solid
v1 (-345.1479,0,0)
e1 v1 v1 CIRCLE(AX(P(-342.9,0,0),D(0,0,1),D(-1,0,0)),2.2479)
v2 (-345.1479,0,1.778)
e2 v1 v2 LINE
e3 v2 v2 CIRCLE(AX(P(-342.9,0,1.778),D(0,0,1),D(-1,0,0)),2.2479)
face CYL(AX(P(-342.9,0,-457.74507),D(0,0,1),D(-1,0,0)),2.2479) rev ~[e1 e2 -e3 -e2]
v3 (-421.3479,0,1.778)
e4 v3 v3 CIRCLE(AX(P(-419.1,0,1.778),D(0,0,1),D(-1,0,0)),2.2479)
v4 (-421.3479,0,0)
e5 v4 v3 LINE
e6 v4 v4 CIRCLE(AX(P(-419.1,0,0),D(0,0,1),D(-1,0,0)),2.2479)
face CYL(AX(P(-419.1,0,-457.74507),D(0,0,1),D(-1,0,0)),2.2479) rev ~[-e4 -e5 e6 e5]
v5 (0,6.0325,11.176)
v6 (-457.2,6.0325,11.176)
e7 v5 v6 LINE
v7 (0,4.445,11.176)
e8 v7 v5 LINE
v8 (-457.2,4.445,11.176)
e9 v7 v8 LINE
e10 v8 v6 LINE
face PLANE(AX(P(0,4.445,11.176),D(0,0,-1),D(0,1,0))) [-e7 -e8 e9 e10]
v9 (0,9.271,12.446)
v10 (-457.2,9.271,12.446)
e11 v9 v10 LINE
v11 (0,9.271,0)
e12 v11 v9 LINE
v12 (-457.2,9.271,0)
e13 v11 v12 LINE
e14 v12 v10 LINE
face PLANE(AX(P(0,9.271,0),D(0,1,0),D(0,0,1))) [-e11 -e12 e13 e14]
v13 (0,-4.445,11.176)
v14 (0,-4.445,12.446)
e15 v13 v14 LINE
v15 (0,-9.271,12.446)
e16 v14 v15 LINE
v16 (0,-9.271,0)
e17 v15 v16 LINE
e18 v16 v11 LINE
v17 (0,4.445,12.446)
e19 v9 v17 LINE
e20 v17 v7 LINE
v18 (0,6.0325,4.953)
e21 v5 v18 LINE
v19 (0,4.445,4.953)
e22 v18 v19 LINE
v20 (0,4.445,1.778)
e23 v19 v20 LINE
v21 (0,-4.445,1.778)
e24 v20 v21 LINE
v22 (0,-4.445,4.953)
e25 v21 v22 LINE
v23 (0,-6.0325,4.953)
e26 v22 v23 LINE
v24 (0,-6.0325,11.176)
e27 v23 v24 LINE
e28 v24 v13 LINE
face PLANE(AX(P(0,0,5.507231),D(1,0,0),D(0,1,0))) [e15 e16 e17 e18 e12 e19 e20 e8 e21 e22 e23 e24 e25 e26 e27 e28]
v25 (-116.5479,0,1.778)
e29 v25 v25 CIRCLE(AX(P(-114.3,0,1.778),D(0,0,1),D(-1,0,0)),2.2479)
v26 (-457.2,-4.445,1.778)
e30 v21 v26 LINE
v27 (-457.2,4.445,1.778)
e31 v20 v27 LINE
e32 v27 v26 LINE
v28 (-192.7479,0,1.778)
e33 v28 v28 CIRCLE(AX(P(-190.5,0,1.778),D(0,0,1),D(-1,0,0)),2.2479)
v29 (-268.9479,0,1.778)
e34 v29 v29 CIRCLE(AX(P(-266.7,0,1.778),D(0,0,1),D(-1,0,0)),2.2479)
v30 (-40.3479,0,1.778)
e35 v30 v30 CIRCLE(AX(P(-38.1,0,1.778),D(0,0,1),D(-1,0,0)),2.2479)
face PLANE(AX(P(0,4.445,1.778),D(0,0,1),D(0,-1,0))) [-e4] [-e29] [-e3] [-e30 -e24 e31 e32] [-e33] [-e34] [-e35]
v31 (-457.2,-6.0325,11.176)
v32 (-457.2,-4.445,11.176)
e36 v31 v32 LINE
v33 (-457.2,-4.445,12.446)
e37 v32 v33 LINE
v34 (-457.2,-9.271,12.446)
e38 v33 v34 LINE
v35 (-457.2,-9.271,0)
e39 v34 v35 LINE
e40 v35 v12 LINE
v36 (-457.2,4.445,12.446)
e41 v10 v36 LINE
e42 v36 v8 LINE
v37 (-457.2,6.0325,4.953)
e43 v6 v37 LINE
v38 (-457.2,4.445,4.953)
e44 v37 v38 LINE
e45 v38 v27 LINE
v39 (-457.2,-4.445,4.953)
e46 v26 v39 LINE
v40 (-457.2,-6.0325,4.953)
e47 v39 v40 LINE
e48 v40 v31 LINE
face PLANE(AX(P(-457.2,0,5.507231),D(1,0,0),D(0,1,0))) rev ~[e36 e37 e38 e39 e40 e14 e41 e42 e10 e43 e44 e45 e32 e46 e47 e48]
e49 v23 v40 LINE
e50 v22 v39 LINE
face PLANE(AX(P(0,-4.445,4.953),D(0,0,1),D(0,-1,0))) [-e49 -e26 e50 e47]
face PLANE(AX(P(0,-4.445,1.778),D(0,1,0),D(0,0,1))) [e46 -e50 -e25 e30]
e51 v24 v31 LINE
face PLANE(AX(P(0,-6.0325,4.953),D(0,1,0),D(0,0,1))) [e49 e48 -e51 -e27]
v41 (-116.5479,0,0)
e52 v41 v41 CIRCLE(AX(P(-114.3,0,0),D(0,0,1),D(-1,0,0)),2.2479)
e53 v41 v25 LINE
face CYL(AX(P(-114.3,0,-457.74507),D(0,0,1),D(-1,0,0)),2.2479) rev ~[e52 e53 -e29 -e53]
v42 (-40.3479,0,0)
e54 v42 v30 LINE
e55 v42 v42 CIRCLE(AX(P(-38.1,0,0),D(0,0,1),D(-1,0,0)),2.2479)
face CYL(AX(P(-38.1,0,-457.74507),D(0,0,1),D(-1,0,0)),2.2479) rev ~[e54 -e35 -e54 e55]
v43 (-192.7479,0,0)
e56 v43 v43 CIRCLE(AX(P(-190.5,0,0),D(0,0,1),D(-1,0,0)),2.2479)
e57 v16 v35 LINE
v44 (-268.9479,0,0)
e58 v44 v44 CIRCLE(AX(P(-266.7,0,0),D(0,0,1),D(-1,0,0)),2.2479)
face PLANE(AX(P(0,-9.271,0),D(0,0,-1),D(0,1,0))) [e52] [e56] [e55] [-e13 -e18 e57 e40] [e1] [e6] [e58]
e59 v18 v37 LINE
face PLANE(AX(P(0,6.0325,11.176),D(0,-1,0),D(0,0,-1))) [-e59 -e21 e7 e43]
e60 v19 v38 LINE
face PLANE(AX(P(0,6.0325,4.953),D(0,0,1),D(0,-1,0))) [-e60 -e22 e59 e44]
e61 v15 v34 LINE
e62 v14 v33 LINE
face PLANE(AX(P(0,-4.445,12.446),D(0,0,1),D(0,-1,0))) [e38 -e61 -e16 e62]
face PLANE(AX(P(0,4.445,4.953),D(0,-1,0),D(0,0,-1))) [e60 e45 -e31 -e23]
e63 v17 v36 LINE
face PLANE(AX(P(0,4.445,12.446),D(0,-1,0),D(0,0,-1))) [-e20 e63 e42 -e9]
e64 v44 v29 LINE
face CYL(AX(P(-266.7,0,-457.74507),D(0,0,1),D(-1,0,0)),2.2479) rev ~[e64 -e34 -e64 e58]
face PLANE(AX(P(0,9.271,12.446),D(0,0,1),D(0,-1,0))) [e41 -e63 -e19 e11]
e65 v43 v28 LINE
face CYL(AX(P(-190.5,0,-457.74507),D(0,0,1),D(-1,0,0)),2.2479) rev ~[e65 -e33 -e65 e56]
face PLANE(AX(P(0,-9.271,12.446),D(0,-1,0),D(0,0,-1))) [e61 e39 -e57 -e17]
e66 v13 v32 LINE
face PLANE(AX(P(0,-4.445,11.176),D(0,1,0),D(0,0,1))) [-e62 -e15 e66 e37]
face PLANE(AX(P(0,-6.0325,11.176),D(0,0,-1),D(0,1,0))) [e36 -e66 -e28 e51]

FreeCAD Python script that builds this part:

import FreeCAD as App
import Part
import Sketcher

V = App.Vector
Q = App.Units.Quantity

doc = App.newDocument("Part")
body = doc.addObject("PartDesign::Body", "Body")

sketch1 = doc.addObject("Sketcher::SketchObject", "Sketch")
body.addObject(sketch1)
sketch1.AttachmentSupport = (doc.YZ_Plane, [""])
sketch1.MapMode = "FlatFace"
sketch1.addGeometry([
    Part.LineSegment(V(-9.3, 0, 0), V(9.3, 0, 0)),
    Part.LineSegment(V(9.3, 0, 0), V(9.3, 12.4, 0)),
    Part.LineSegment(V(9.3, 12.4, 0), V(4.4, 12.4, 0)),
    Part.LineSegment(V(4.4, 12.4, 0), V(4.4, 11.2, 0)),
    Part.LineSegment(V(4.4, 11.2, 0), V(6, 11.2, 0)),
    Part.LineSegment(V(6, 11.2, 0), V(6, 5, 0)),
    Part.LineSegment(V(6, 5, 0), V(4.4, 5, 0)),
    Part.LineSegment(V(4.4, 5, 0), V(4.4, 1.8, 0)),
    Part.LineSegment(V(4.4, 1.8, 0), V(-4.4, 1.8, 0)),
    Part.LineSegment(V(-4.4, 1.8, 0), V(-4.4, 5, 0)),
    Part.LineSegment(V(-4.4, 5, 0), V(-6, 5, 0)),
    Part.LineSegment(V(-6, 5, 0), V(-6, 11.2, 0)),
    Part.LineSegment(V(-6, 11.2, 0), V(-4.4, 11.2, 0)),
    Part.LineSegment(V(-4.4, 11.2, 0), V(-4.4, 12.4, 0)),
    Part.LineSegment(V(-4.4, 12.4, 0), V(-9.3, 12.4, 0)),
    Part.LineSegment(V(-9.3, 12.4, 0), V(-9.3, 0, 0)),
], False)
sketch1.addConstraint([
    Sketcher.Constraint("Coincident", 0, 2, 1, 1),
    Sketcher.Constraint("Coincident", 1, 2, 2, 1),
    Sketcher.Constraint("Coincident", 2, 2, 3, 1),
    Sketcher.Constraint("Coincident", 3, 2, 4, 1),
    Sketcher.Constraint("Coincident", 4, 2, 5, 1),
    Sketcher.Constraint("Coincident", 5, 2, 6, 1),
    Sketcher.Constraint("Coincident", 6, 2, 7, 1),
    Sketcher.Constraint("Coincident", 7, 2, 8, 1),
    Sketcher.Constraint("Coincident", 8, 2, 9, 1),
    Sketcher.Constraint("Coincident", 9, 2, 10, 1),
    Sketcher.Constraint("Coincident", 10, 2, 11, 1),
    Sketcher.Constraint("Coincident", 11, 2, 12, 1),
    Sketcher.Constraint("Coincident", 12, 2, 13, 1),
    Sketcher.Constraint("Coincident", 13, 2, 14, 1),
    Sketcher.Constraint("Coincident", 14, 2, 15, 1),
    Sketcher.Constraint("Coincident", 15, 2, 0, 1),
    Sketcher.Constraint("Horizontal", 0),
    Sketcher.Constraint("Vertical", 1),
    Sketcher.Constraint("Horizontal", 2),
    Sketcher.Constraint("Vertical", 3),
    Sketcher.Constraint("Horizontal", 4),
    Sketcher.Constraint("Vertical", 5),
    Sketcher.Constraint("Horizontal", 6),
    Sketcher.Constraint("Vertical", 7),
    Sketcher.Constraint("Horizontal", 8),
    Sketcher.Constraint("Vertical", 9),
    Sketcher.Constraint("Horizontal", 10),
    Sketcher.Constraint("Vertical", 11),
    Sketcher.Constraint("Horizontal", 12),
    Sketcher.Constraint("Vertical", 13),
    Sketcher.Constraint("Horizontal", 14),
    Sketcher.Constraint("Vertical", 15),
    Sketcher.Constraint("Symmetric", 0, 2, 15, 2, -1, 1),
    Sketcher.Constraint("Symmetric", 6, 2, 9, 2, -2),
    Sketcher.Constraint("Symmetric", 4, 2, 11, 2, -2),
    Sketcher.Constraint("Symmetric", 2, 2, 13, 2, -2),
    Sketcher.Constraint("Vertical", 3, 2, 6, 2),
    Sketcher.Constraint("DistanceX", 0, 1, 0, 2, Q("0.73 in")),
    Sketcher.Constraint("DistanceX", 2, 2, 2, 1, Q("0.19 in")),
    Sketcher.Constraint("DistanceY", 1, 1, 1, 2, Q("0.49 in")),
    Sketcher.Constraint("DistanceY", 3, 2, 3, 1, Q("0.05 in")),
    Sketcher.Constraint("DistanceX", 4, 1, 4, 2, Q("0.0625 in")),
    Sketcher.Constraint("DistanceY", 5, 2, 5, 1, Q("0.245 in")),
    Sketcher.Constraint("DistanceY", 7, 2, 7, 1, Q("0.125 in")),
])
pad1 = doc.addObject("PartDesign::Pad", "Pad")
body.addObject(pad1)
pad1.Profile = sketch1
pad1.Length = Q("18 in")
pad1.Reversed = True

sketch2 = doc.addObject("Sketcher::SketchObject", "Sketch001")
body.addObject(sketch2)
sketch2.AttachmentSupport = (doc.XY_Plane, [""])
sketch2.MapMode = "FlatFace"
sketch2.addGeometry([
    Part.Circle(V(-38.1, 0, 0), V(0, 0, 1), 2.2),
    Part.Circle(V(-114.3, 0, 0), V(0, 0, 1), 2.2),
    Part.Circle(V(-190.5, 0, 0), V(0, 0, 1), 2.2),
    Part.Circle(V(-266.7, 0, 0), V(0, 0, 1), 2.2),
    Part.Circle(V(-342.9, 0, 0), V(0, 0, 1), 2.2),
    Part.Circle(V(-419.1, 0, 0), V(0, 0, 1), 2.2),
], False)
sketch2.addConstraint([
    Sketcher.Constraint("Equal", 0, 1),
    Sketcher.Constraint("Equal", 1, 2),
    Sketcher.Constraint("Equal", 2, 3),
    Sketcher.Constraint("Equal", 3, 4),
    Sketcher.Constraint("Equal", 4, 5),
    Sketcher.Constraint("PointOnObject", 0, 3, -1),
    Sketcher.Constraint("PointOnObject", 1, 3, -1),
    Sketcher.Constraint("PointOnObject", 2, 3, -1),
    Sketcher.Constraint("PointOnObject", 3, 3, -1),
    Sketcher.Constraint("PointOnObject", 4, 3, -1),
    Sketcher.Constraint("PointOnObject", 5, 3, -1),
    Sketcher.Constraint("Diameter", 0, Q("0.177 in")),
    Sketcher.Constraint("DistanceX", 1, 3, 0, 3, Q("3 in")),
    Sketcher.Constraint("DistanceX", 2, 3, 1, 3, Q("3 in")),
    Sketcher.Constraint("DistanceX", 3, 3, 2, 3, Q("3 in")),
    Sketcher.Constraint("DistanceX", 4, 3, 3, 3, Q("3 in")),
    Sketcher.Constraint("DistanceX", 5, 3, 4, 3, Q("3 in")),
    Sketcher.Constraint("DistanceX", 0, 3, -1, 1, Q("1.5 in")),
])
doc.recompute()
hole = doc.addObject("PartDesign::Hole", "Hole")
body.addObject(hole)
hole.Profile = sketch2
hole.ThreadType = "None"
hole.Diameter = Q("0.177 in")
hole.DepthType = "ThroughAll"
hole.Reversed = True

doc.recompute()
